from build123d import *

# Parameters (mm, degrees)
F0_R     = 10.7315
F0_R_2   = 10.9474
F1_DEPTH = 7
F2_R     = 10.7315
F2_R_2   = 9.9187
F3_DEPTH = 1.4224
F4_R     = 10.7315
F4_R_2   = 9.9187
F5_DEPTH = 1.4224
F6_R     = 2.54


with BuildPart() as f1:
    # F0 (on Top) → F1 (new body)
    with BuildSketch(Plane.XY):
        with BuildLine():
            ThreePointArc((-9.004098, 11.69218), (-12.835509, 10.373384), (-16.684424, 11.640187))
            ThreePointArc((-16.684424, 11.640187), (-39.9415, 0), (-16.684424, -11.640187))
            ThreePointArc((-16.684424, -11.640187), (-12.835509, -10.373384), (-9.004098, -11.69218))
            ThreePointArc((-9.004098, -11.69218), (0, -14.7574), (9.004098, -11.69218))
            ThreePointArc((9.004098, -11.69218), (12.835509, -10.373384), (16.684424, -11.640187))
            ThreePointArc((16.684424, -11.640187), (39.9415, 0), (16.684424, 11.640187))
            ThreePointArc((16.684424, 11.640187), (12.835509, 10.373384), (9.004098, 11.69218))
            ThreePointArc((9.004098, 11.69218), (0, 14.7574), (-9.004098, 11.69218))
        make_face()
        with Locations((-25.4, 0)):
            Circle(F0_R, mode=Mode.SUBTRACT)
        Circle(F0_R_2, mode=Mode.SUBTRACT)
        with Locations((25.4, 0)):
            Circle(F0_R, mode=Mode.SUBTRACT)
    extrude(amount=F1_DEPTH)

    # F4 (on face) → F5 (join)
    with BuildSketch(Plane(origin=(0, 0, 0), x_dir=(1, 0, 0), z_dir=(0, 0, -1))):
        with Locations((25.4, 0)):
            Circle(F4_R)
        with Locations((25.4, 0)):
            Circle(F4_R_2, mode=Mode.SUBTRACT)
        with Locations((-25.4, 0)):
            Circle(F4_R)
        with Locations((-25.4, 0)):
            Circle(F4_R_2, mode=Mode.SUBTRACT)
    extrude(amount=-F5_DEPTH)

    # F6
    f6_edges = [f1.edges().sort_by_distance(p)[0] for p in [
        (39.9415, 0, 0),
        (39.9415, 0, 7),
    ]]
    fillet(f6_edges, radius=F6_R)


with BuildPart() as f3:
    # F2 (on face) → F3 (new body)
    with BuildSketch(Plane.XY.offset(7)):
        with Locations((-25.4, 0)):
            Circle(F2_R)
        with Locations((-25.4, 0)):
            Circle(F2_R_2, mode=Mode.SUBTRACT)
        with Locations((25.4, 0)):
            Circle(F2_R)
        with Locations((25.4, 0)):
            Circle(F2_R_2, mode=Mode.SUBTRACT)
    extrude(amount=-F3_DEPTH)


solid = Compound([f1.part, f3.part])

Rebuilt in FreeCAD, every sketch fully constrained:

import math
import FreeCAD as App
import Part
import Sketcher
Q = App.Units.Quantity


def edges_at(feature, points):
    """Names of the edges that pass closest to the given points."""
    edges = feature.Shape.Edges
    near = lambda p: min(range(len(edges)), key=lambda i: edges[i].distToShape(Part.Vertex(*p))[0])
    return sorted({f"Edge{near(p) + 1}" for p in points})

doc = App.newDocument("Part")
params = doc.addObject("Spreadsheet::Sheet", "Params")
for row, (alias, value) in enumerate([
    ("sketch1_radius", "0.2500001 in"),
    ("sketch1_diameter", "0.845 in"),
    ("sketch1_diameter2", "0.862 in"),
    ("sketch1_radius2", "0.581 in"),
    ("pad1_length", "7 mm"),
    ("sketch2_diameter", "0.845 in"),
    ("sketch2_diameter2", "0.781 in"),
    ("pad2_length", "0.056 in"),
    ("fillet_radius", "0.1 in"),
    ("sketch3_diameter", "0.845 in"),
    ("sketch3_diameter2", "0.781 in"),
    ("pad3_length", "0.056 in"),
], start=1):
    params.set(f"A{row}", alias)
    params.set(f"B{row}", "=" + value)
    params.setAlias(f"B{row}", alias)

body = doc.addObject("PartDesign::Body", "Body")

# Sketch on XY plane
sketch1 = doc.addObject("Sketcher::SketchObject", "Sketch")
body.addObject(sketch1)
sketch1.AttachmentSupport = (doc.XY_Plane, [""])
sketch1.MapMode = "FlatFace"
sketch1.addGeometry([
    Part.ArcOfCircle(Part.Circle(App.Vector(-13, 17, 0), App.Vector(0, 0, 1), 6), math.radians(-127), math.radians(-52)),  # 0
    Part.ArcOfCircle(Part.Circle(App.Vector(-25, 0, 0), App.Vector(0, 0, 1), 15), math.radians(53), math.radians(307)),  # 1
    Part.ArcOfCircle(Part.Circle(App.Vector(-13, -17, 0), App.Vector(0, 0, 1), 6), math.radians(52), math.radians(127)),  # 2
    Part.ArcOfCircle(Part.Circle(App.Vector(0, 0, 0), App.Vector(0, 0, 1), 15), math.radians(-128), math.radians(-52)),  # 3
    Part.ArcOfCircle(Part.Circle(App.Vector(13, -17, 0), App.Vector(0, 0, 1), 6), math.radians(53), math.radians(128)),  # 4
    Part.ArcOfCircle(Part.Circle(App.Vector(25, 0, 0), App.Vector(0, 0, 1), 15), math.radians(-127), math.radians(127)),  # 5
    Part.ArcOfCircle(Part.Circle(App.Vector(13, 17, 0), App.Vector(0, 0, 1), 6), math.radians(-128), math.radians(-53)),  # 6
    Part.ArcOfCircle(Part.Circle(App.Vector(0, 0, 0), App.Vector(0, 0, 1), 15), math.radians(52), math.radians(128)),  # 7
    Part.Circle(App.Vector(-25, 0, 0), App.Vector(0, 0, 1), 11),  # 8
    Part.Circle(App.Vector(0, 0, 0), App.Vector(0, 0, 1), 11),  # 9
    Part.Circle(App.Vector(25, 0, 0), App.Vector(0, 0, 1), 11),  # 10
], False)
sketch1.addConstraint([
    Sketcher.Constraint("Tangent", 0, 1, 1, 1),
    Sketcher.Constraint("Tangent", 1, 2, 2, 2),
    Sketcher.Constraint("Tangent", 2, 1, 3, 1),
    Sketcher.Constraint("Tangent", 3, 2, 4, 2),
    Sketcher.Constraint("Tangent", 4, 1, 5, 1),
    Sketcher.Constraint("Tangent", 5, 2, 6, 2),
    Sketcher.Constraint("Tangent", 6, 1, 7, 1),
    Sketcher.Constraint("Tangent", 7, 2, 0, 2),
    Sketcher.Constraint("Coincident", 3, 3, -1, 1),
    Sketcher.Constraint("Coincident", 7, 3, -1, 1),
    Sketcher.Constraint("Coincident", 9, 3, -1, 1),
    Sketcher.Constraint("Coincident", 8, 3, 1, 3),
    Sketcher.Constraint("Coincident", 10, 3, 5, 3),
    Sketcher.Constraint("Equal", 0, 2),
    Sketcher.Constraint("Equal", 2, 4),
    Sketcher.Constraint("Equal", 1, 5),
    Sketcher.Constraint("Equal", 4, 6),
    Sketcher.Constraint("Equal", 3, 7),
    Sketcher.Constraint("Equal", 8, 10),
    Sketcher.Constraint("Symmetric", 1, 3, 5, 3, -1, 1),
    Sketcher.Constraint("PointOnObject", 1, 3, -1),
    Sketcher.Constraint("Radius", 0, Q("0.2500001 in")),
    Sketcher.Constraint("Diameter", 8, Q("0.845 in")),
    Sketcher.Constraint("Diameter", 9, Q("0.862 in")),
    Sketcher.Constraint("DistanceX", 1, 3, -1, 1, Q("1 in")),
    Sketcher.Constraint("Radius", 3, Q("0.581 in")),
    Sketcher.Constraint("Radius", 1, Q("0.5725 in")),
])
sketch1.setExpression("Constraints[21]", "Params.sketch1_radius")
sketch1.setExpression("Constraints[22]", "Params.sketch1_diameter")
sketch1.setExpression("Constraints[23]", "Params.sketch1_diameter2")
sketch1.setExpression("Constraints[25]", "Params.sketch1_radius2")
pad1 = doc.addObject("PartDesign::Pad", "Pad")
body.addObject(pad1)
pad1.Profile = sketch1
pad1.setExpression("Length", "Params.pad1_length")

# Sketch on XY plane
sketch2 = doc.addObject("Sketcher::SketchObject", "Sketch001")
body.addObject(sketch2)
sketch2.AttachmentSupport = (doc.XY_Plane, [""])
sketch2.MapMode = "FlatFace"
sketch2.addGeometry([
    Part.Circle(App.Vector(25, 0, 0), App.Vector(0, 0, 1), 11),
    Part.Circle(App.Vector(25, 0, 0), App.Vector(0, 0, 1), 10),
    Part.Circle(App.Vector(-25, 0, 0), App.Vector(0, 0, 1), 11),
    Part.Circle(App.Vector(-25, 0, 0), App.Vector(0, 0, 1), 10),
], False)
sketch2.addConstraint([
    Sketcher.Constraint("Coincident", 1, 3, 0, 3),
    Sketcher.Constraint("Coincident", 3, 3, 2, 3),
    Sketcher.Constraint("Equal", 0, 2),
    Sketcher.Constraint("Equal", 1, 3),
    Sketcher.Constraint("Symmetric", 0, 3, 2, 3, -1, 1),
    Sketcher.Constraint("PointOnObject", 0, 3, -1),
    Sketcher.Constraint("Diameter", 0, Q("0.845 in")),
    Sketcher.Constraint("Diameter", 1, Q("0.781 in")),
    Sketcher.Constraint("DistanceX", -1, 1, 0, 3, Q("1 in")),
])
sketch2.setExpression("Constraints[6]", "Params.sketch2_diameter")
sketch2.setExpression("Constraints[7]", "Params.sketch2_diameter2")
pad2 = doc.addObject("PartDesign::Pad", "Pad001")
body.addObject(pad2)
pad2.Profile = sketch2
pad2.setExpression("Length", "Params.pad2_length")
doc.recompute()

fillet = doc.addObject("PartDesign::Fillet", "Fillet")
body.addObject(fillet)
fillet.Base = (pad2, edges_at(pad2, [(39.941, 0, 0), (39.941, 0, 7)]))
fillet.setExpression("Radius", "Params.fillet_radius")
body2 = doc.addObject("PartDesign::Body", "Body001")
body2.AllowCompound = True

# Sketch on XY plane
sketch3 = doc.addObject("Sketcher::SketchObject", "Sketch002")
body2.addObject(sketch3)
sketch3.AttachmentSupport = (doc.getObject("XY_Plane001"), [""])
sketch3.MapMode = "FlatFace"
sketch3.AttachmentOffset = App.Placement(App.Vector(0, 0, 7), App.Rotation())
sketch3.addGeometry([
    Part.Circle(App.Vector(-25, 0, 0), App.Vector(0, 0, 1), 11),
    Part.Circle(App.Vector(-25, 0, 0), App.Vector(0, 0, 1), 10),
    Part.Circle(App.Vector(25, 0, 0), App.Vector(0, 0, 1), 11),
    Part.Circle(App.Vector(25, 0, 0), App.Vector(0, 0, 1), 10),
], False)
sketch3.addConstraint([
    Sketcher.Constraint("Coincident", 1, 3, 0, 3),
    Sketcher.Constraint("Coincident", 3, 3, 2, 3),
    Sketcher.Constraint("Equal", 0, 2),
    Sketcher.Constraint("Equal", 1, 3),
    Sketcher.Constraint("Symmetric", 0, 3, 2, 3, -1, 1),
    Sketcher.Constraint("PointOnObject", 0, 3, -1),
    Sketcher.Constraint("Diameter", 0, Q("0.845 in")),
    Sketcher.Constraint("Diameter", 1, Q("0.781 in")),
    Sketcher.Constraint("DistanceX", 0, 3, -1, 1, Q("1 in")),
])
sketch3.setExpression("Constraints[6]", "Params.sketch3_diameter")
sketch3.setExpression("Constraints[7]", "Params.sketch3_diameter2")
pad3 = doc.addObject("PartDesign::Pad", "Pad002")
body2.addObject(pad3)
pad3.Profile = sketch3
pad3.setExpression("Length", "Params.pad3_length")
pad3.Reversed = True

doc.recompute()
